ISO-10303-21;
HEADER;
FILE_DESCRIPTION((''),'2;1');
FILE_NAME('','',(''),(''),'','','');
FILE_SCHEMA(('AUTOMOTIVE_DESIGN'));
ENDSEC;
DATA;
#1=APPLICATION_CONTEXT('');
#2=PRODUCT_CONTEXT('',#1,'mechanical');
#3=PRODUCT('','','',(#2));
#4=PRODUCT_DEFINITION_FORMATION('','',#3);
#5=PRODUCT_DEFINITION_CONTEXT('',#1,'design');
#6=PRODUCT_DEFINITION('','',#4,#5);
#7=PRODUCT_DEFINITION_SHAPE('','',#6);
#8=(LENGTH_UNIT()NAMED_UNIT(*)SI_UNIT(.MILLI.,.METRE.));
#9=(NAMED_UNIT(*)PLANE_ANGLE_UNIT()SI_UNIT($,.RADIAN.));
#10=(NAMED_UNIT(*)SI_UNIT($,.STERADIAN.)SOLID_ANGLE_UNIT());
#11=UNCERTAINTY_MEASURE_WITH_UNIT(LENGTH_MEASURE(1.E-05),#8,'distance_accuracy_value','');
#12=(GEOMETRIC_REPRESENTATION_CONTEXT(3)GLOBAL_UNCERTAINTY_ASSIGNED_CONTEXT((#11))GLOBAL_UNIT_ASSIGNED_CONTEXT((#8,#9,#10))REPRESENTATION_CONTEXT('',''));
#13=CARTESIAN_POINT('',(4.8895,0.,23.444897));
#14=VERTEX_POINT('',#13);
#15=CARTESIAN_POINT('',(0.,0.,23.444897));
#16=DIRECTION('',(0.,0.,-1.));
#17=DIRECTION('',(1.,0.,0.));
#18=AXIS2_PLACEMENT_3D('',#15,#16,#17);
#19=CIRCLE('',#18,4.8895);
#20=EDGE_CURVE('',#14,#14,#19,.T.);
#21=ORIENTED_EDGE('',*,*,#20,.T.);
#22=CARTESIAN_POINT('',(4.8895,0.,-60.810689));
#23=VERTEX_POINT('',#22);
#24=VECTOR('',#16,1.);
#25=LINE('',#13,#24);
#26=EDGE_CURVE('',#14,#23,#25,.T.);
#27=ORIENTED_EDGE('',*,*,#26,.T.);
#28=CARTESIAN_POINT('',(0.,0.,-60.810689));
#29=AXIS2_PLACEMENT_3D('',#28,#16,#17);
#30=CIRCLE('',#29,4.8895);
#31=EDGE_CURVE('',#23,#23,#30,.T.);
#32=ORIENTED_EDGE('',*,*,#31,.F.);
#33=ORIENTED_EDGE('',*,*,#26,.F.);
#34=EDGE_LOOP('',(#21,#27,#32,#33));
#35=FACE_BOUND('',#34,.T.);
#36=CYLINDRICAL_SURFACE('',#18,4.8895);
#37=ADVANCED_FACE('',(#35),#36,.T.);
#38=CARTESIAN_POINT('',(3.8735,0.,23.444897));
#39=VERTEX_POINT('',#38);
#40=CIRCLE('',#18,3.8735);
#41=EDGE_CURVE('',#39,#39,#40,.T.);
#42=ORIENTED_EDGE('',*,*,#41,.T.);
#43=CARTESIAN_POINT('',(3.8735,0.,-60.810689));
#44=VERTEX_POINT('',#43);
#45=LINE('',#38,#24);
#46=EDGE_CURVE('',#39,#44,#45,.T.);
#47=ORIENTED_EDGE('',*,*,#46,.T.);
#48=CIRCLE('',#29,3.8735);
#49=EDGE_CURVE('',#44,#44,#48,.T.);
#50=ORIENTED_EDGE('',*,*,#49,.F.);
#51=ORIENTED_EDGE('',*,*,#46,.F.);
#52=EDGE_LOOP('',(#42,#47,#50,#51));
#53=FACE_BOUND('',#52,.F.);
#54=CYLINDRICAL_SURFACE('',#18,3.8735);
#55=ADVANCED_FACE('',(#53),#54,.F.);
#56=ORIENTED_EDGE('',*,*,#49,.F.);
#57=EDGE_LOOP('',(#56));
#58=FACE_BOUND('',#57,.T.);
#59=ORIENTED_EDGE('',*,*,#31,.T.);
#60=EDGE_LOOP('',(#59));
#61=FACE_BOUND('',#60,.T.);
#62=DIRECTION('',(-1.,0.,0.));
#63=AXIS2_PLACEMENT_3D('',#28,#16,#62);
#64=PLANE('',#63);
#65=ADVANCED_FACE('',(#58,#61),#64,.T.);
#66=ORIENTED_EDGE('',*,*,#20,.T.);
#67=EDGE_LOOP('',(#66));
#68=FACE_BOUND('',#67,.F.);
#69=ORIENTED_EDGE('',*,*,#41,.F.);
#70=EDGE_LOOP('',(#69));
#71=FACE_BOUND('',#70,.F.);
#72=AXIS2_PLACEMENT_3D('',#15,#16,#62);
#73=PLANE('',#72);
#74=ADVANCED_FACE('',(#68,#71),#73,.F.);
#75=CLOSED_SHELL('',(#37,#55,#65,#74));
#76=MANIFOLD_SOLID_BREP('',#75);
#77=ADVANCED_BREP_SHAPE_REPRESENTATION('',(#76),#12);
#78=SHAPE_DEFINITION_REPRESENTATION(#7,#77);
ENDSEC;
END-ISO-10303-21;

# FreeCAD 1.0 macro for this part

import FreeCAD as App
import Part
import Sketcher
from FreeCAD import Vector
Q = App.Units.Quantity

doc = App.newDocument("Part")
params = doc.addObject("Spreadsheet::Sheet", "Params")
for row, (alias, value) in enumerate([
    ("sketch1_diameter", "0.385 in"),
    ("sketch1_diameter2", "0.305 in"),
], start=1):
    params.set(f"A{row}", alias)
    params.set(f"B{row}", "=" + value)
    params.setAlias(f"B{row}", alias)

body = doc.addObject("PartDesign::Body", "Body")

sketch1 = body.newObject("Sketcher::SketchObject", "Sketch")
sketch1.AttachmentSupport = (doc.getObject("XY_Plane"), [""])
sketch1.MapMode = "FlatFace"
sketch1.AttachmentOffset = App.Placement(Vector(0, 0, 23.444897), App.Rotation())
sketch1.addGeometry([
    Part.Circle(Vector(0, 0, 0), Vector(0, 0, 1), 4.9),
    Part.Circle(Vector(0, 0, 0), Vector(0, 0, 1), 3.9),
], False)
sketch1.addConstraint([
    Sketcher.Constraint("Coincident", 0, 3, -1, 1),
    Sketcher.Constraint("Coincident", 1, 3, -1, 1),
    Sketcher.Constraint("Diameter", 0, Q("0.385 in")),
    Sketcher.Constraint("Diameter", 1, Q("0.305 in")),
])
sketch1.setExpression("Constraints[2]", "Params.sketch1_diameter")
sketch1.setExpression("Constraints[3]", "Params.sketch1_diameter2")

sketch2 = body.newObject("Sketcher::SketchObject", "Sketch001")
sketch2.AttachmentSupport = (doc.getObject("XZ_Plane"), [""])
sketch2.MapMode = "FlatFace"
sketch2.addGeometry(Part.LineSegment(Vector(0, 23, 0), Vector(0, -61, 0)), False)
sketch2.addConstraint([
    Sketcher.Constraint("Vertical", 0),
    Sketcher.Constraint("PointOnObject", 0, 1, -2),
    Sketcher.Constraint("DistanceY", 0, 2, 0, 1, 84.255586),
    Sketcher.Constraint("DistanceY", 0, 2, -1, 1, 60.810689),
])
doc.recompute()

additivepipe = body.newObject("PartDesign::AdditivePipe", "AdditivePipe")
additivepipe.Profile = sketch1
additivepipe.Spine = (sketch2, ["Edge1"])

doc.recompute()
